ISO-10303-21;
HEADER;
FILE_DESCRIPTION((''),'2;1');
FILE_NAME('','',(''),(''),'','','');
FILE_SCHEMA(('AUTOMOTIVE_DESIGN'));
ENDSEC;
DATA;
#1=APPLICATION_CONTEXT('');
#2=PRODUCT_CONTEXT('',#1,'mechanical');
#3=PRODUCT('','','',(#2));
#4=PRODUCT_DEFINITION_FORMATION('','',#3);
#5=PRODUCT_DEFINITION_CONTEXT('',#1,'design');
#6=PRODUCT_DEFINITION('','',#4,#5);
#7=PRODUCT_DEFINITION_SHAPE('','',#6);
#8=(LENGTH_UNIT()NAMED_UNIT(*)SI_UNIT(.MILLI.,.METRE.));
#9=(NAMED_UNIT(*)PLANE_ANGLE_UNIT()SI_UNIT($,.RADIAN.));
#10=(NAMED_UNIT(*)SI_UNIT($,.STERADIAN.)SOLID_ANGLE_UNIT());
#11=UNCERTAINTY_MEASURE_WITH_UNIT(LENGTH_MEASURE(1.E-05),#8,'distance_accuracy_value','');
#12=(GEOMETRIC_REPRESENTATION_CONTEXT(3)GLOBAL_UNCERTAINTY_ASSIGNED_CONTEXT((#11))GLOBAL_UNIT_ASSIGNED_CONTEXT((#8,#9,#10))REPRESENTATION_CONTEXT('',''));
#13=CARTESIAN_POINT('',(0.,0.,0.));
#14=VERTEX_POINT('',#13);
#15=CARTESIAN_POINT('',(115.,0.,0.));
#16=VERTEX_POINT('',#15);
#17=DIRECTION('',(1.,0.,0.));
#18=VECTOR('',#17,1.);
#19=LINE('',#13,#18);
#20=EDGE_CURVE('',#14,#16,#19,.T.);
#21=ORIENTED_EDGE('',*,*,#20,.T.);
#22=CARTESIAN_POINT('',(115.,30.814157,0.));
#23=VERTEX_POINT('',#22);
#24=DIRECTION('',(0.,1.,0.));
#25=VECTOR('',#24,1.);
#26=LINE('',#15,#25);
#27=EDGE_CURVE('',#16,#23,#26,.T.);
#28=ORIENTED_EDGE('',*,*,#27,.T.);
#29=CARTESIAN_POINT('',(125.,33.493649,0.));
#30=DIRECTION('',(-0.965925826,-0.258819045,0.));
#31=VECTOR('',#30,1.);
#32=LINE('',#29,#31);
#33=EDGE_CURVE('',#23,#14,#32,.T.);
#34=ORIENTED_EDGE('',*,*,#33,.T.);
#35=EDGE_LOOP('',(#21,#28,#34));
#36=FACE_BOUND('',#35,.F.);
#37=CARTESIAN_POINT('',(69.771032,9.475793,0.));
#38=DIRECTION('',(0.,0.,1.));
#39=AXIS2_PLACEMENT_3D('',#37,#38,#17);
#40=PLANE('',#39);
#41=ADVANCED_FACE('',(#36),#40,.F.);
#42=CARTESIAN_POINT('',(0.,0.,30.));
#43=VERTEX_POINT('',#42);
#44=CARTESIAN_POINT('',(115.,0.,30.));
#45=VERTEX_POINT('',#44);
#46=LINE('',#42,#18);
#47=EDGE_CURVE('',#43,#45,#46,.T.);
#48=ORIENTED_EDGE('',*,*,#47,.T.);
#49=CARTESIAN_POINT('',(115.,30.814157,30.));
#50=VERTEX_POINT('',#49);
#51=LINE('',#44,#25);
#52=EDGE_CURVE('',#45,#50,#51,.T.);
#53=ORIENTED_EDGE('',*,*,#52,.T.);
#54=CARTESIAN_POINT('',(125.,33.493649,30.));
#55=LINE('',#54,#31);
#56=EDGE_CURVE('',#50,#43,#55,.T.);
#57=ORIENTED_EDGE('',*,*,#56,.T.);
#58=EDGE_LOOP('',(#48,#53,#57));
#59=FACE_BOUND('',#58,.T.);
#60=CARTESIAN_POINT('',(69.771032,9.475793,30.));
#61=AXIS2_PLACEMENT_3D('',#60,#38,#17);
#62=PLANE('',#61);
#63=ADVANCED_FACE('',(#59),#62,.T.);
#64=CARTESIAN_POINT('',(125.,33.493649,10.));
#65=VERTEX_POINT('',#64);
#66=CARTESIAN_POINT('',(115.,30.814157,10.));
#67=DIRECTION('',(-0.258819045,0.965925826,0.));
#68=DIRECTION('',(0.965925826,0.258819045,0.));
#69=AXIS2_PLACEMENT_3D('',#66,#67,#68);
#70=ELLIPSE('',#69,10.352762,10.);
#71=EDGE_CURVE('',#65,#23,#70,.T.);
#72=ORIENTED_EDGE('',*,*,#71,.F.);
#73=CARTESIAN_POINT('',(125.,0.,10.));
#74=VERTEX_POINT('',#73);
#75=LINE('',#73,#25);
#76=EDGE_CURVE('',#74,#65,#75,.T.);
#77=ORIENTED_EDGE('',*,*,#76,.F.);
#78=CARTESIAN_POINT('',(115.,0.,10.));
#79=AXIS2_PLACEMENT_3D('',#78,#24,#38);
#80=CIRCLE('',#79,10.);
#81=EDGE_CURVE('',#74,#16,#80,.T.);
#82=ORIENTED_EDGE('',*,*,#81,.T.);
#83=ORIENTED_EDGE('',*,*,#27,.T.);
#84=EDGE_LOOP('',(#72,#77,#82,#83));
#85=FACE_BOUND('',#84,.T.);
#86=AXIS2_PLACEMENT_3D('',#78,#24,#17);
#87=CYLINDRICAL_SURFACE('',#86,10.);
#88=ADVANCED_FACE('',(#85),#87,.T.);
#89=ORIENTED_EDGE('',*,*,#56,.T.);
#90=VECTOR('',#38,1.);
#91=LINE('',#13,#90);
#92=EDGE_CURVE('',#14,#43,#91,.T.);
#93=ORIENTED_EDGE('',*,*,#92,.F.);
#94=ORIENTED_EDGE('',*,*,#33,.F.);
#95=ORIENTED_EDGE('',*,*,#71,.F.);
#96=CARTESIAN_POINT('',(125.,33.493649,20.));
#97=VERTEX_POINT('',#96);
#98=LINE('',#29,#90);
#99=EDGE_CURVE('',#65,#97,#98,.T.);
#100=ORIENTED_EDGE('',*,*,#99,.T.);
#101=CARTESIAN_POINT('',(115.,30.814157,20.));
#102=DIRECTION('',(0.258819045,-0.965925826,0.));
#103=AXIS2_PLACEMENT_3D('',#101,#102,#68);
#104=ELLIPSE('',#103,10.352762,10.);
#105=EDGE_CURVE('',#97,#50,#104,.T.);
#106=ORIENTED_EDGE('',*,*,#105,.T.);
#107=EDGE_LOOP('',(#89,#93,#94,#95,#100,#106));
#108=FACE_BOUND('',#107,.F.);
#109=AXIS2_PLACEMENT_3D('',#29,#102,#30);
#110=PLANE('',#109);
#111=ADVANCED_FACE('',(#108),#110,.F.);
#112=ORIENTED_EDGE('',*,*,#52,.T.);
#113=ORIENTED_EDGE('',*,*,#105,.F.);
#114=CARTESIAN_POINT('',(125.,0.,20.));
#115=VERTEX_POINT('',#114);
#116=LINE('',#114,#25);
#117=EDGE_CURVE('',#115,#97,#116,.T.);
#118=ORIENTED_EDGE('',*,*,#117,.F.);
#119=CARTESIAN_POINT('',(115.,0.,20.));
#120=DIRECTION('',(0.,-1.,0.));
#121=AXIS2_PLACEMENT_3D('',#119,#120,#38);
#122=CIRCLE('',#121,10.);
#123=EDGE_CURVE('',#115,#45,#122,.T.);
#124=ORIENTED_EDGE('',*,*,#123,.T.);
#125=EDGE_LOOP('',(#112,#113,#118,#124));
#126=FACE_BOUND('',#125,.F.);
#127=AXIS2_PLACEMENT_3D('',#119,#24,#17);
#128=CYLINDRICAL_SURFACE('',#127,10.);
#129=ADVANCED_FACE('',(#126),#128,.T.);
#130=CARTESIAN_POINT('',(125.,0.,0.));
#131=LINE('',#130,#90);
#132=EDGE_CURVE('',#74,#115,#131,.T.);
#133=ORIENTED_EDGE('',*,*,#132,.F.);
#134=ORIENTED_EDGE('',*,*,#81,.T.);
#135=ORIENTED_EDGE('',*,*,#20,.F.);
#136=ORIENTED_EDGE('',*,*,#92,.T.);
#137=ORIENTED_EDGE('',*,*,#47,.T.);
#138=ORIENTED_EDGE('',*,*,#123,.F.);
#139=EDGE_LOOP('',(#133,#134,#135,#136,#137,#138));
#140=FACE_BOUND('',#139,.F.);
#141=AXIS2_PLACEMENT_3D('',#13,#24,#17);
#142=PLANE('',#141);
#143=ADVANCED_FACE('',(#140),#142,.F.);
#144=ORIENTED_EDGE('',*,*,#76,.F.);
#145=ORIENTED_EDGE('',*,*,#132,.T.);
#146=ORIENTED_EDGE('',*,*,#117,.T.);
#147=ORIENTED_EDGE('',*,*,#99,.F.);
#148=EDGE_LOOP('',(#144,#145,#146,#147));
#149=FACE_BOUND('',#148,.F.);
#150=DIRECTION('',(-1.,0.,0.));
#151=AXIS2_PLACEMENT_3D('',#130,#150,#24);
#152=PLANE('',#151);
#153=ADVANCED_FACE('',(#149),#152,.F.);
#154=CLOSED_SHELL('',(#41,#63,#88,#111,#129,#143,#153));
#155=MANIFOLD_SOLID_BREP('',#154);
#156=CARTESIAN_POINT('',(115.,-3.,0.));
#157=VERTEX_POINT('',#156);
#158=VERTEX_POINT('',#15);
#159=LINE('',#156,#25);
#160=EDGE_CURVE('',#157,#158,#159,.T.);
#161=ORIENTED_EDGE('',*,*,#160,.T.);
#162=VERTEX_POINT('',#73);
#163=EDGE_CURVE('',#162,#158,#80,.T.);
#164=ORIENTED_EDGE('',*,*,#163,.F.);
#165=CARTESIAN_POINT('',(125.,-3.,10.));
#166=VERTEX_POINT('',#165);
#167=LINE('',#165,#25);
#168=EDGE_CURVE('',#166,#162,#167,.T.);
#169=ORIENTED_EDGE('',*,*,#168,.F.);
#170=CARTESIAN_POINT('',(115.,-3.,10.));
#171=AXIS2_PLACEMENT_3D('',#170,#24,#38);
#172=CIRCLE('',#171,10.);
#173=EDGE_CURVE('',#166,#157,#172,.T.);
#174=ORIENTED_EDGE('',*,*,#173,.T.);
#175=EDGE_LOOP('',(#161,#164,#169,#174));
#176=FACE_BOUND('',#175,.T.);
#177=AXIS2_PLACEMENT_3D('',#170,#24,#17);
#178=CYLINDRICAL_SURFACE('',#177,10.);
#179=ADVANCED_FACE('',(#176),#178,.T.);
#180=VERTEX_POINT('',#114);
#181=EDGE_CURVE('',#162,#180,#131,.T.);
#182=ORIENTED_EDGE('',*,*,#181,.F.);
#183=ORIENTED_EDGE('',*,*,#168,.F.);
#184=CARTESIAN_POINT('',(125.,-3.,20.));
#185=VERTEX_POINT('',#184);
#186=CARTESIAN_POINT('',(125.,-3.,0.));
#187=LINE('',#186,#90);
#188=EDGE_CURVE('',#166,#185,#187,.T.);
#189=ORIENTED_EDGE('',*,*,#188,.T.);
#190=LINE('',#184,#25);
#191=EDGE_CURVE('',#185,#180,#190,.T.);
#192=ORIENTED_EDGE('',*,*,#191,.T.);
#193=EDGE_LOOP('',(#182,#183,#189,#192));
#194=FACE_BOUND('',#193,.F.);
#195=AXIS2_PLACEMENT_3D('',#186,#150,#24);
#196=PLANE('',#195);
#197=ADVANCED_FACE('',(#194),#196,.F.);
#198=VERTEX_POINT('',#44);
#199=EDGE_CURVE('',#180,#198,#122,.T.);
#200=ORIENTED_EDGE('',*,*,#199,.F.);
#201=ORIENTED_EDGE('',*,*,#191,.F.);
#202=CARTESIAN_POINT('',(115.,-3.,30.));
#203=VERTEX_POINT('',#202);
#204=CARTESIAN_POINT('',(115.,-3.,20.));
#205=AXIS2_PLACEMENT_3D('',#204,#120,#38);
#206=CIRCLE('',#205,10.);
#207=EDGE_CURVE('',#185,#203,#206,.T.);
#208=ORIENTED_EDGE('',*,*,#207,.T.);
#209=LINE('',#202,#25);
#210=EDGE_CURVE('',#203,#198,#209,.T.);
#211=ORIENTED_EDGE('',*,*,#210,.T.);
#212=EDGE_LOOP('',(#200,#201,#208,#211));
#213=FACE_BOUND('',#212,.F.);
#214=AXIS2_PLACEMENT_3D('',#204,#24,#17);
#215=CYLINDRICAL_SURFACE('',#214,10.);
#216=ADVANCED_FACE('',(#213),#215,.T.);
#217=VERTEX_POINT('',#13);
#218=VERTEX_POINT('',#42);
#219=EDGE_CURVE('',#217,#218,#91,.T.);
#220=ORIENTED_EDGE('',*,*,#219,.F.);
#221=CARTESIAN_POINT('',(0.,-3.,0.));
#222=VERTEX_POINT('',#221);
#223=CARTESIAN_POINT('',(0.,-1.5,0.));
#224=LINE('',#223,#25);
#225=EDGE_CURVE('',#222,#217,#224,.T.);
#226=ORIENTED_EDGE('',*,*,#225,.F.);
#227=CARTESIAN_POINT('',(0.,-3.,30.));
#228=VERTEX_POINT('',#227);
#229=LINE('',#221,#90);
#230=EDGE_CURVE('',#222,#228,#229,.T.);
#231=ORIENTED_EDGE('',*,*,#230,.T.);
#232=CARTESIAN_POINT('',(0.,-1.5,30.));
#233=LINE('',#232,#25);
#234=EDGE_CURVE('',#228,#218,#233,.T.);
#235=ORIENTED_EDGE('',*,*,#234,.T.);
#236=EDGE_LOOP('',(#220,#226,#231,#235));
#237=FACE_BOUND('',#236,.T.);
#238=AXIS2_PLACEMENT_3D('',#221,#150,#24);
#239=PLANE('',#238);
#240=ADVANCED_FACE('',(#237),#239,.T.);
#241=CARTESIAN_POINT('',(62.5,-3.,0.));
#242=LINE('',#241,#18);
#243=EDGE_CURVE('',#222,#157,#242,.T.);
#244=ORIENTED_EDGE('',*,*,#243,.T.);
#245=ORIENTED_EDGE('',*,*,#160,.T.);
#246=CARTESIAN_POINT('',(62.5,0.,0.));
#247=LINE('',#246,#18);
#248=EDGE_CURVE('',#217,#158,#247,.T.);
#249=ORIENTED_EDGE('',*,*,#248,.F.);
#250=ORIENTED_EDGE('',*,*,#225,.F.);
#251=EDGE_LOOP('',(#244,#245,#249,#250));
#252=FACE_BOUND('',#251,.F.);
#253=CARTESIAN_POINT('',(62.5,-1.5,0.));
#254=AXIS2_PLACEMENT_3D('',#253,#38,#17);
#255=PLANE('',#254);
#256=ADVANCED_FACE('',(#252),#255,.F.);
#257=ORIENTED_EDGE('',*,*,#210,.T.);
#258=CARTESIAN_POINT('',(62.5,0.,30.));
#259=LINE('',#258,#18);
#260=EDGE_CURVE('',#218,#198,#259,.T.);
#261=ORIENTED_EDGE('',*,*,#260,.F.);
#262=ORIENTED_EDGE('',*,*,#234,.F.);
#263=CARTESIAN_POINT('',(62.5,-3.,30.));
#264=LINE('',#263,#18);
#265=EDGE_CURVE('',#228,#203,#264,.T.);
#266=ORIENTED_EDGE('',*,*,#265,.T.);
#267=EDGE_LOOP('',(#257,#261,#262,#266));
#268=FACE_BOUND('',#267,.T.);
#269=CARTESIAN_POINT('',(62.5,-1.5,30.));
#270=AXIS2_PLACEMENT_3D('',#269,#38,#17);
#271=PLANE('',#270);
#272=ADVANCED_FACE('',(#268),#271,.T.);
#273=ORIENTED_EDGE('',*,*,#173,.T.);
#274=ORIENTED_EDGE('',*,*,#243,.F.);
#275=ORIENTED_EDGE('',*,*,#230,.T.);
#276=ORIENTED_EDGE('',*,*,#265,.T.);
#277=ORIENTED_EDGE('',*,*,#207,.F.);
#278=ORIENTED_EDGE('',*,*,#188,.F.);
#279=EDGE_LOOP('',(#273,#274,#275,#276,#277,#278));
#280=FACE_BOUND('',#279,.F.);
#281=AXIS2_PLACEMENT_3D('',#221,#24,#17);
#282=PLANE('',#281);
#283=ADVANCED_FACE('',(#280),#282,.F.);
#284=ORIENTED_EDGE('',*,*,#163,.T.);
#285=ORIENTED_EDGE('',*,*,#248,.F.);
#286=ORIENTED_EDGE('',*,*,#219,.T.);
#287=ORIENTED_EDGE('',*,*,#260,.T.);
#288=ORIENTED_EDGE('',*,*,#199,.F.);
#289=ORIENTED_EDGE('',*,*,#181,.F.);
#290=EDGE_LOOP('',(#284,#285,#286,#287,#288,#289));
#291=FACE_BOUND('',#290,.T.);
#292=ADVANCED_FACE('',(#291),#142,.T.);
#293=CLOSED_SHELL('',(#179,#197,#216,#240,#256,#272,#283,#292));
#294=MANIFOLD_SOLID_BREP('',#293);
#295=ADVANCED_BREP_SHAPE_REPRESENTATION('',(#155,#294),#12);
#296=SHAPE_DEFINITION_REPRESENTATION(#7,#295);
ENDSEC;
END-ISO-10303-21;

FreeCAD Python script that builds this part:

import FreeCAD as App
import Part
import Sketcher
Q = App.Units.Quantity


def edges_at(feature, points):
    """Names of the edges that pass closest to the given points."""
    edges = feature.Shape.Edges
    near = lambda p: min(range(len(edges)), key=lambda i: edges[i].distToShape(Part.Vertex(*p))[0])
    return sorted({f"Edge{near(p) + 1}" for p in points})

doc = App.newDocument("Part")
params = doc.addObject("Spreadsheet::Sheet", "Params")
for row, (alias, value) in enumerate([
    ("sketch1_width", "125 mm"),
    ("pad1_length", "30 mm"),
    ("fillet_radius", "10 mm"),
    ("fillet2_radius", "10 mm"),
    ("sketch2_width", "125 mm"),
    ("sketch2_height", "3 mm"),
    ("pad2_length", "30 mm"),
    ("fillet3_radius", "10 mm"),
    ("fillet4_radius", "10 mm"),
], start=1):
    params.set(f"A{row}", alias)
    params.set(f"B{row}", "=" + value)
    params.setAlias(f"B{row}", alias)

body = doc.addObject("PartDesign::Body", "Body")

# Sketch on XY plane
sketch1 = body.newObject("Sketcher::SketchObject", "Sketch")
sketch1.AttachmentSupport = (doc.getObject("XY_Plane"), [""])
sketch1.MapMode = "FlatFace"
sketch1.addGeometry([
    Part.LineSegment(App.Vector(125, 33.493649, 0), App.Vector(0, 0, 0)),
    Part.LineSegment(App.Vector(0, 0, 0), App.Vector(125, 0, 0)),
    Part.LineSegment(App.Vector(125, 0, 0), App.Vector(125, 33.493649, 0)),
], False)
sketch1.addConstraint([
    Sketcher.Constraint("Coincident", 0, 2, 1, 1),
    Sketcher.Constraint("Coincident", 1, 2, 2, 1),
    Sketcher.Constraint("Coincident", 2, 2, 0, 1),
    Sketcher.Constraint("Horizontal", 1),
    Sketcher.Constraint("Vertical", 2),
    Sketcher.Constraint("Coincident", 0, 2, -1, 1),
    Sketcher.Constraint("DistanceX", 1, 1, 1, 2, Q("125 mm")),
    Sketcher.Constraint("Angle", 0, Q("-165 deg")),
])
sketch1.setExpression("Constraints[6]", "Params.sketch1_width")
pad1 = body.newObject("PartDesign::Pad", "Pad")
pad1.Profile = sketch1
pad1.setExpression("Length", "Params.pad1_length")
doc.recompute()

fillet = body.newObject("PartDesign::Fillet", "Fillet")
fillet.Base = (pad1, edges_at(pad1, [(125, 16.747, 30)]))
fillet.setExpression("Radius", "Params.fillet_radius")
doc.recompute()

fillet2 = body.newObject("PartDesign::Fillet", "Fillet001")
fillet2.Base = (fillet, edges_at(fillet, [(125, 16.747, 0)]))
fillet2.setExpression("Radius", "Params.fillet2_radius")
body2 = doc.addObject("PartDesign::Body", "Body001")

# Sketch on XY plane
sketch2 = body2.newObject("Sketcher::SketchObject", "Sketch001")
sketch2.AttachmentSupport = (doc.getObject("XY_Plane001"), [""])
sketch2.MapMode = "FlatFace"
sketch2.addGeometry([
    Part.LineSegment(App.Vector(0, 0, 0), App.Vector(0, -3, 0)),
    Part.LineSegment(App.Vector(0, -3, 0), App.Vector(125, -3, 0)),
    Part.LineSegment(App.Vector(125, -3, 0), App.Vector(125, 0, 0)),
    Part.LineSegment(App.Vector(125, 0, 0), App.Vector(0, 0, 0)),
], False)
sketch2.addConstraint([
    Sketcher.Constraint("Coincident", 0, 2, 1, 1),
    Sketcher.Constraint("Coincident", 1, 2, 2, 1),
    Sketcher.Constraint("Coincident", 2, 2, 3, 1),
    Sketcher.Constraint("Coincident", 3, 2, 0, 1),
    Sketcher.Constraint("Vertical", 0),
    Sketcher.Constraint("Horizontal", 1),
    Sketcher.Constraint("Vertical", 2),
    Sketcher.Constraint("Horizontal", 3),
    Sketcher.Constraint("Coincident", 3, 2, -1, 1),
    Sketcher.Constraint("DistanceX", 1, 1, 1, 2, Q("125 mm")),
    Sketcher.Constraint("DistanceY", 0, 2, 0, 1, Q("3 mm")),
])
sketch2.setExpression("Constraints[9]", "Params.sketch2_width")
sketch2.setExpression("Constraints[10]", "Params.sketch2_height")
pad2 = body2.newObject("PartDesign::Pad", "Pad001")
pad2.Profile = sketch2
pad2.setExpression("Length", "Params.pad2_length")
doc.recompute()

fillet3 = body2.newObject("PartDesign::Fillet", "Fillet002")
fillet3.Base = (pad2, edges_at(pad2, [(125, -1.5, 30)]))
fillet3.setExpression("Radius", "Params.fillet3_radius")
doc.recompute()

fillet4 = body2.newObject("PartDesign::Fillet", "Fillet003")
fillet4.Base = (fillet3, edges_at(fillet3, [(125, -1.5, 0)]))
fillet4.setExpression("Radius", "Params.fillet4_radius")

doc.recompute()
